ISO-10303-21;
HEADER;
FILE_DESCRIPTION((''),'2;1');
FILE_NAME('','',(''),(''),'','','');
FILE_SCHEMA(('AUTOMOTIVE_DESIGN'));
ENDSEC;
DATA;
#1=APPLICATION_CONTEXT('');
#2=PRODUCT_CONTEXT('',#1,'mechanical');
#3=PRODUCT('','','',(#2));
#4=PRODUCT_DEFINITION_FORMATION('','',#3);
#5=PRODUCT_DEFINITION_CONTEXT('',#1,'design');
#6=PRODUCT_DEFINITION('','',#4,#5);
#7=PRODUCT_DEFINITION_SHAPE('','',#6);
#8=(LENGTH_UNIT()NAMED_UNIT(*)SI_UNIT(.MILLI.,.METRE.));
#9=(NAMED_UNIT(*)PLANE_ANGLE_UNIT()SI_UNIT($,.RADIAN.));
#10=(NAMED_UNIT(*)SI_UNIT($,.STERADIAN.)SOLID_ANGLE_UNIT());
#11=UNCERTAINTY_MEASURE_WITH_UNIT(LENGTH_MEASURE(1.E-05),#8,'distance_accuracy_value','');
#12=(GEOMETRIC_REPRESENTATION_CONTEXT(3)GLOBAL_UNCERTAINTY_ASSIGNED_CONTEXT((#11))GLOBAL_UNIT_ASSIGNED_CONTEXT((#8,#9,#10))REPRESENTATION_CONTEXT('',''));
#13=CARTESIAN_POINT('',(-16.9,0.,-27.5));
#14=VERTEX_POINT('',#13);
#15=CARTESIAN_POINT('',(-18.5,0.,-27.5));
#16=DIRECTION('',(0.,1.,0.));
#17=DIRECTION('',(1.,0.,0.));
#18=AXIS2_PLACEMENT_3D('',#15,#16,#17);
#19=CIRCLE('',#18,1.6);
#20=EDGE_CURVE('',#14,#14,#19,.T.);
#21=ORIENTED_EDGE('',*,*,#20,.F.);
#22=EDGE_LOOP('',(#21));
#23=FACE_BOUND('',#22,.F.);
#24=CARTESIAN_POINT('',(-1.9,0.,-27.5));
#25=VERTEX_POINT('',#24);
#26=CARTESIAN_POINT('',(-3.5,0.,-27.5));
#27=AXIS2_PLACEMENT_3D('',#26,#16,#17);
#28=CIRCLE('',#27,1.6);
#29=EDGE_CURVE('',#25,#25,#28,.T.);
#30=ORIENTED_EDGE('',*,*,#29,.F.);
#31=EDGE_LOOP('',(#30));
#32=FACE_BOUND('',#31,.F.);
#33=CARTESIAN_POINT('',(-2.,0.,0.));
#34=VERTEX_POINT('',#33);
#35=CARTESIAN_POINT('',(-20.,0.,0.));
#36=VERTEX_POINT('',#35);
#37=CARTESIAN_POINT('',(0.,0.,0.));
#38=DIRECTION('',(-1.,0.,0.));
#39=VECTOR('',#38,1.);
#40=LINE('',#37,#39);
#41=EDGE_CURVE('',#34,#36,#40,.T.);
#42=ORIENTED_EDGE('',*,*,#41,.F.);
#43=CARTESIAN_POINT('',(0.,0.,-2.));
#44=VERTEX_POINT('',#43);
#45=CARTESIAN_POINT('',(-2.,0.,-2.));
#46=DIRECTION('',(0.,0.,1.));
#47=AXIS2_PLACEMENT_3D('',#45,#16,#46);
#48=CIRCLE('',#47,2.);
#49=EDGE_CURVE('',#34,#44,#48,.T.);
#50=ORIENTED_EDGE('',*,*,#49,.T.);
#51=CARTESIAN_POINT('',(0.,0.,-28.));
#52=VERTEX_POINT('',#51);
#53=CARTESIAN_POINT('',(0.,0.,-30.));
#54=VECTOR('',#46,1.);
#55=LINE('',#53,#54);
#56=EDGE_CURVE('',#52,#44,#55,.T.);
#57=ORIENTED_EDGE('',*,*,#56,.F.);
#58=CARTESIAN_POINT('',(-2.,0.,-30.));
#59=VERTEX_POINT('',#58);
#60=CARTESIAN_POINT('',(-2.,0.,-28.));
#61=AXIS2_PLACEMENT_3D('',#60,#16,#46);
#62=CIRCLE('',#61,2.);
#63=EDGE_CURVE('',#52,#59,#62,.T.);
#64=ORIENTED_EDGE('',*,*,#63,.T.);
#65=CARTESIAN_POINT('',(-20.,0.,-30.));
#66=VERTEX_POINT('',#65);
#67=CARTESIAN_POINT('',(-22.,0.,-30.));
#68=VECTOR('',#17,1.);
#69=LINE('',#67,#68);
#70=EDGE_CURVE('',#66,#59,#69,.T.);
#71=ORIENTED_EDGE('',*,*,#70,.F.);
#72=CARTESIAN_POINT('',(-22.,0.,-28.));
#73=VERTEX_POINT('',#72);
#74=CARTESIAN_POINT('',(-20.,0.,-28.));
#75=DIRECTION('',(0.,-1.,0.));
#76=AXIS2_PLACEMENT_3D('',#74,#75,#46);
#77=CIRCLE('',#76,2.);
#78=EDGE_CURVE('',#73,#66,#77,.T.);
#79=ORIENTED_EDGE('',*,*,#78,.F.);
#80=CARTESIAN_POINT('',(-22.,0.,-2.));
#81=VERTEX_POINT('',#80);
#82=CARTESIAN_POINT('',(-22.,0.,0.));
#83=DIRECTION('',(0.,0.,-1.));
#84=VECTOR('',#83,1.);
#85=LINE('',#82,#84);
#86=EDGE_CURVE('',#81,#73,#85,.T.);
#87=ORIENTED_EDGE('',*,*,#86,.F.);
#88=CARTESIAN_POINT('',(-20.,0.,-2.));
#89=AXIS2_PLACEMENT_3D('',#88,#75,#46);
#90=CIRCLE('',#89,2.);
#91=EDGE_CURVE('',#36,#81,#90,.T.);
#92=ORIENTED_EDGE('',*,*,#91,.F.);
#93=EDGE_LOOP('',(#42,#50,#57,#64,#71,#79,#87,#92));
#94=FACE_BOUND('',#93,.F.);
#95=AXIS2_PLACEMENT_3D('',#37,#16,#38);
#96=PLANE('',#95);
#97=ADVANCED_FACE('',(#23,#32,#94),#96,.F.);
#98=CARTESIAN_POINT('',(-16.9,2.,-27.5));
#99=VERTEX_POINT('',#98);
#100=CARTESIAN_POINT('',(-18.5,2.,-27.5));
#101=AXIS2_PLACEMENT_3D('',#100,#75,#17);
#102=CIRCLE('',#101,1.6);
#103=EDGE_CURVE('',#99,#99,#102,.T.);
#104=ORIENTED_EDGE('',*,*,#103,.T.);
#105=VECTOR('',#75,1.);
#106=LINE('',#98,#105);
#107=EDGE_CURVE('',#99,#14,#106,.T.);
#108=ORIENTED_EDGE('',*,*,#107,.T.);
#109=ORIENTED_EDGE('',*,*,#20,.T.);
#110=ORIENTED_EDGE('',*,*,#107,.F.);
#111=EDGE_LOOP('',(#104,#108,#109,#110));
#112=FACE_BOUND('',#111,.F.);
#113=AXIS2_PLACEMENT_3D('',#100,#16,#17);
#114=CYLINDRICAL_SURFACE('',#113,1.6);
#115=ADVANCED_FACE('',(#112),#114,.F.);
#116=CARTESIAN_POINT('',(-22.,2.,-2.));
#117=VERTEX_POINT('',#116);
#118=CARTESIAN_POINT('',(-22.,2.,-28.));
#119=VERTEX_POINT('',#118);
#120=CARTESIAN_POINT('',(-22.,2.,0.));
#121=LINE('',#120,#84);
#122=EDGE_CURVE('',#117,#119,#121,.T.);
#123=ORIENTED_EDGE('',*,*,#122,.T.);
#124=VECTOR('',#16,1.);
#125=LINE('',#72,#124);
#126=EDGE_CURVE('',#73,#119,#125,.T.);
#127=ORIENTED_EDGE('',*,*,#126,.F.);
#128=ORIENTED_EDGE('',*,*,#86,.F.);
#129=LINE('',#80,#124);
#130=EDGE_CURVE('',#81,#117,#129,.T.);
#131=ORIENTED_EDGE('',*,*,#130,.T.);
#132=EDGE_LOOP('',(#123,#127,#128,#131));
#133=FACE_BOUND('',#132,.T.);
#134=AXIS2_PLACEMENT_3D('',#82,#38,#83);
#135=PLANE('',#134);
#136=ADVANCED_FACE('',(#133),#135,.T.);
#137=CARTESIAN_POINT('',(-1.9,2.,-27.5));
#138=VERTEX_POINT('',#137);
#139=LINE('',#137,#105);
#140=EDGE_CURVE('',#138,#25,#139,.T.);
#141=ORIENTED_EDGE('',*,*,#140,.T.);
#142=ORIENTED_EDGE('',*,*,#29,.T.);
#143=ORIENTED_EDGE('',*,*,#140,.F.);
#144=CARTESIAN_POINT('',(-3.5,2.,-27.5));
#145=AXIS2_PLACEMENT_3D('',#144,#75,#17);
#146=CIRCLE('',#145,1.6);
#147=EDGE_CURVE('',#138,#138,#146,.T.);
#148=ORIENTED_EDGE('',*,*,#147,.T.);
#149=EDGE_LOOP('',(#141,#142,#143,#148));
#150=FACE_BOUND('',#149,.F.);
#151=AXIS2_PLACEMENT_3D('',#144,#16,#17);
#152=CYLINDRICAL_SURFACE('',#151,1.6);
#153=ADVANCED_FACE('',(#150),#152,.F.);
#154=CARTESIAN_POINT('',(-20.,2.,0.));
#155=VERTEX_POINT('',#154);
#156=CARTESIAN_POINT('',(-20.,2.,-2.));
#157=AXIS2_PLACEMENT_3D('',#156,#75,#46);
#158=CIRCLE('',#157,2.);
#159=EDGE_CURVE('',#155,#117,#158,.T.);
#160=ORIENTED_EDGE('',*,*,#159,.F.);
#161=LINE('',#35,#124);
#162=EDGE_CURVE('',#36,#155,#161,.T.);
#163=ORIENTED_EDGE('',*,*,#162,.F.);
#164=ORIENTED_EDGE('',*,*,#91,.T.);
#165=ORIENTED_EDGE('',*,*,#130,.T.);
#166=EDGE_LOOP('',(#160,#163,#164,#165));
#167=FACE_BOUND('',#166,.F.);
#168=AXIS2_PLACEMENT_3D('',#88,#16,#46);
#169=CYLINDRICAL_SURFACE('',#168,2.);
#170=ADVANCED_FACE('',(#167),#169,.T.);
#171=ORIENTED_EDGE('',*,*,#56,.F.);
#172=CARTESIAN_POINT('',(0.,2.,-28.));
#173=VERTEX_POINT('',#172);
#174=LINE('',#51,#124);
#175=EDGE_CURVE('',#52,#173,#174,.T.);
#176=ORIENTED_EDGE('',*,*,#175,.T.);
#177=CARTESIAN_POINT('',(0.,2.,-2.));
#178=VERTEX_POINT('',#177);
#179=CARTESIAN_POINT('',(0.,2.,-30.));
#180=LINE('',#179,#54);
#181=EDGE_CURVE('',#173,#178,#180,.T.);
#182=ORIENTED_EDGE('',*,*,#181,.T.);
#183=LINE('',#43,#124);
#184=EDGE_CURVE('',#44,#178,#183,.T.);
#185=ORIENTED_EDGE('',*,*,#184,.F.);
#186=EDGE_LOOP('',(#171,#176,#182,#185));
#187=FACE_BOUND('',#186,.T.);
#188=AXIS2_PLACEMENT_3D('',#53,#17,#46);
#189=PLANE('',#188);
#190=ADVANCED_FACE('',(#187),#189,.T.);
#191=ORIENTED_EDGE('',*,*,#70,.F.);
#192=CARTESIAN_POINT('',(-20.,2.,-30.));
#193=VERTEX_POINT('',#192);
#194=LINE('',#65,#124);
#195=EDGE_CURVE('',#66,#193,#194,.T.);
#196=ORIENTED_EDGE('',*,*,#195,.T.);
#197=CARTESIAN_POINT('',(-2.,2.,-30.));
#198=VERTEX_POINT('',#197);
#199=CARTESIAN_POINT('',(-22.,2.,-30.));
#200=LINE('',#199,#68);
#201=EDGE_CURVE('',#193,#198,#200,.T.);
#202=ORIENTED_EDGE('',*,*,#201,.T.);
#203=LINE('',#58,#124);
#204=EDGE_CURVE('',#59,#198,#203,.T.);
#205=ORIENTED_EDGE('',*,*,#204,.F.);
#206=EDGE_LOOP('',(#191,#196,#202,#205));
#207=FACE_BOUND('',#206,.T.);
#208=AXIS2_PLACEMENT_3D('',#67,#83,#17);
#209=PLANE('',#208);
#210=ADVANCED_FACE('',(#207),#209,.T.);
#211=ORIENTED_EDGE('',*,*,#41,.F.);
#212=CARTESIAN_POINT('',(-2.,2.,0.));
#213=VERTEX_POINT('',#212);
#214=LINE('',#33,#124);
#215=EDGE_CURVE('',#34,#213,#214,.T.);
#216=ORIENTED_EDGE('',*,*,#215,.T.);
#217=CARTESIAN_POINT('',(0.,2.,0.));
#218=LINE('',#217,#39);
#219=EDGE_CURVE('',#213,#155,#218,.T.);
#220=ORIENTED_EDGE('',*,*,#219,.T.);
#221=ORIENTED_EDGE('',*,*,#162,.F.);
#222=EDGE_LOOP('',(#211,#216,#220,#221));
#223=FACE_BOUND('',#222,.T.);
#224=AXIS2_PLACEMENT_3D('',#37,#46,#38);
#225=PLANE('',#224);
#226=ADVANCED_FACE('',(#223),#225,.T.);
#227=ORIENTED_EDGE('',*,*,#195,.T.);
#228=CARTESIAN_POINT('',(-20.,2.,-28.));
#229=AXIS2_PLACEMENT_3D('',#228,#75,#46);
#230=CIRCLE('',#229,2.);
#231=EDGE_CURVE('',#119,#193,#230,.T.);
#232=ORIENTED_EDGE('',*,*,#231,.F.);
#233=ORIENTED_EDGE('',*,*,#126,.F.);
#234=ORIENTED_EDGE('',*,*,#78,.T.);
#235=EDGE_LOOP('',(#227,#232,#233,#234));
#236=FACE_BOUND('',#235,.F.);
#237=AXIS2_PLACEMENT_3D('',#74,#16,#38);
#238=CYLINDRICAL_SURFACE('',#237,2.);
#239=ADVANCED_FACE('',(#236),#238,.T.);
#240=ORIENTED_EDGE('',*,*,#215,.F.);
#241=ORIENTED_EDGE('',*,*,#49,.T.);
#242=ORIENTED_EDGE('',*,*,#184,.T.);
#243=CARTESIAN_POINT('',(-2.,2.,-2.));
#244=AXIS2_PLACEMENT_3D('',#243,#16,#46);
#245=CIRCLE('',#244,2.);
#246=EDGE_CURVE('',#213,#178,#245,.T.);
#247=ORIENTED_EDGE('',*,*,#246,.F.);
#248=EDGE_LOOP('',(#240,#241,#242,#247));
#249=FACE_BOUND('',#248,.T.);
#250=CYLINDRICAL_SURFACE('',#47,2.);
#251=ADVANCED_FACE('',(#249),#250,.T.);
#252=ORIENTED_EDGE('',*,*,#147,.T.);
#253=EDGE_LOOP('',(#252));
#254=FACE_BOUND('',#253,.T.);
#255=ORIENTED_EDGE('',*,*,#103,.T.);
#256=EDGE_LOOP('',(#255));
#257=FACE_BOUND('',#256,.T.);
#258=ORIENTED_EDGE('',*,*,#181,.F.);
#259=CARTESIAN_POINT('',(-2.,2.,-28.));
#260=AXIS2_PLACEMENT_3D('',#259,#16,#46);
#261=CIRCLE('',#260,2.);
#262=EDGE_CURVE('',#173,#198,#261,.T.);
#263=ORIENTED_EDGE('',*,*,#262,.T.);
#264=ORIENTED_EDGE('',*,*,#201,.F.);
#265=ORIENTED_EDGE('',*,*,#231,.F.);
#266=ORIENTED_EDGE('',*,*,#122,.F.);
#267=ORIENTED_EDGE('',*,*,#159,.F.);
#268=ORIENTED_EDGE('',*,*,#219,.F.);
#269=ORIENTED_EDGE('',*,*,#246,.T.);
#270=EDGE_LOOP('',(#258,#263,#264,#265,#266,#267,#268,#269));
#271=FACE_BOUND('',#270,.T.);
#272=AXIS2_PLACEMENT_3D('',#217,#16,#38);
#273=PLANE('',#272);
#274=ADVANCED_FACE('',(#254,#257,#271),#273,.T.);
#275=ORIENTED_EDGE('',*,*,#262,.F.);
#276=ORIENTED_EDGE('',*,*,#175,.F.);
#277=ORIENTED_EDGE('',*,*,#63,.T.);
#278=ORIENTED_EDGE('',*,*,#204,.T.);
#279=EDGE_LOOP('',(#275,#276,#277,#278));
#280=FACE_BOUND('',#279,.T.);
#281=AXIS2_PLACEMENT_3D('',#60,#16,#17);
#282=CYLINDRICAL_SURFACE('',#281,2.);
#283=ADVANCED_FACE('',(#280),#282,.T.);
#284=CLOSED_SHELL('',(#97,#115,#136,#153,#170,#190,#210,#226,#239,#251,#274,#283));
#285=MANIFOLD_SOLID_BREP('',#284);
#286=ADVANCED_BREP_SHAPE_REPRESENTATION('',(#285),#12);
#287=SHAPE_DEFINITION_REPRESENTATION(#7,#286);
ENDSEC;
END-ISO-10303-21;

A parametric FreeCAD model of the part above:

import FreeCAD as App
import Part
import Sketcher
Q = App.Units.Quantity


def edges_at(feature, points):
    """Names of the edges that pass closest to the given points."""
    edges = feature.Shape.Edges
    near = lambda p: min(range(len(edges)), key=lambda i: edges[i].distToShape(Part.Vertex(*p))[0])
    return sorted({f"Edge{near(p) + 1}" for p in points})

doc = App.newDocument("Part")
body = doc.addObject("PartDesign::Body", "Body")

# Sketch on XZ plane
sketch1 = body.newObject("Sketcher::SketchObject", "Sketch")
sketch1.AttachmentSupport = (doc.getObject("XZ_Plane"), [""])
sketch1.MapMode = "FlatFace"
sketch1.addGeometry(Part.LineSegment(App.Vector(-22, 0, 0), App.Vector(0, 0, 0)), False)
sketch1.addGeometry(Part.LineSegment(App.Vector(0, 0, 0), App.Vector(0, -30, 0)), False)
sketch1.addGeometry(Part.LineSegment(App.Vector(0, -30, 0), App.Vector(-22, -30, 0)), False)
sketch1.addGeometry(Part.LineSegment(App.Vector(-22, -30, 0), App.Vector(-22, 0, 0)), False)
sketch1.addConstraint(Sketcher.Constraint("Coincident", 0, 2, 1, 1))
sketch1.addConstraint(Sketcher.Constraint("Coincident", 1, 2, 2, 1))
sketch1.addConstraint(Sketcher.Constraint("Coincident", 2, 2, 3, 1))
sketch1.addConstraint(Sketcher.Constraint("Coincident", 3, 2, 0, 1))
sketch1.addConstraint(Sketcher.Constraint("Horizontal", 0))
sketch1.addConstraint(Sketcher.Constraint("Vertical", 1))
sketch1.addConstraint(Sketcher.Constraint("Horizontal", 2))
sketch1.addConstraint(Sketcher.Constraint("Vertical", 3))
sketch1.addConstraint(Sketcher.Constraint("Coincident", 0, 2, -1, 1))
sketch1.addConstraint(Sketcher.Constraint("DistanceX", 0, 1, 0, 2, Q("22 mm")))
sketch1.addConstraint(Sketcher.Constraint("DistanceY", 1, 2, 1, 1, Q("30 mm")))
pad1 = body.newObject("PartDesign::Pad", "Pad")
pad1.Profile = sketch1
pad1.Length = 2
pad1.Reversed = True

# Sketch on XZ plane
sketch2 = body.newObject("Sketcher::SketchObject", "Sketch001")
sketch2.AttachmentSupport = (doc.getObject("XZ_Plane"), [""])
sketch2.MapMode = "FlatFace"
sketch2.AttachmentOffset = App.Placement(App.Vector(0, 0, -2), App.Rotation())
sketch2.addGeometry(Part.Circle(App.Vector(-18.5, -27.5, 0), App.Vector(0, 0, 1), 1.6), False)
sketch2.addGeometry(Part.Circle(App.Vector(-3.5, -27.5, 0), App.Vector(0, 0, 1), 1.6), False)
sketch2.addConstraint(Sketcher.Constraint("Equal", 0, 1))
sketch2.addConstraint(Sketcher.Constraint("Horizontal", 0, 3, 1, 3))
sketch2.addConstraint(Sketcher.Constraint("Diameter", 0, Q("3.2 mm")))
sketch2.addConstraint(Sketcher.Constraint("DistanceX", 0, 3, 1, 3, Q("15 mm")))
sketch2.addConstraint(Sketcher.Constraint("DistanceX", 0, 3, -1, 1, Q("18.5 mm")))
sketch2.addConstraint(Sketcher.Constraint("DistanceY", 0, 3, -1, 1, Q("27.5 mm")))
pocket1 = body.newObject("PartDesign::Pocket", "Pocket")
pocket1.Profile = sketch2
pocket1.Type = "ThroughAll"
pocket1.Reversed = True
doc.recompute()

fillet = body.newObject("PartDesign::Fillet", "Fillet")
fillet.Base = (pocket1, edges_at(pocket1, [
    (0, 1, -30),
    (-22, 1, -30),
    (0, 1, 0),
    (-22, 1, 0),
]))
fillet.Radius = 2

doc.recompute()
